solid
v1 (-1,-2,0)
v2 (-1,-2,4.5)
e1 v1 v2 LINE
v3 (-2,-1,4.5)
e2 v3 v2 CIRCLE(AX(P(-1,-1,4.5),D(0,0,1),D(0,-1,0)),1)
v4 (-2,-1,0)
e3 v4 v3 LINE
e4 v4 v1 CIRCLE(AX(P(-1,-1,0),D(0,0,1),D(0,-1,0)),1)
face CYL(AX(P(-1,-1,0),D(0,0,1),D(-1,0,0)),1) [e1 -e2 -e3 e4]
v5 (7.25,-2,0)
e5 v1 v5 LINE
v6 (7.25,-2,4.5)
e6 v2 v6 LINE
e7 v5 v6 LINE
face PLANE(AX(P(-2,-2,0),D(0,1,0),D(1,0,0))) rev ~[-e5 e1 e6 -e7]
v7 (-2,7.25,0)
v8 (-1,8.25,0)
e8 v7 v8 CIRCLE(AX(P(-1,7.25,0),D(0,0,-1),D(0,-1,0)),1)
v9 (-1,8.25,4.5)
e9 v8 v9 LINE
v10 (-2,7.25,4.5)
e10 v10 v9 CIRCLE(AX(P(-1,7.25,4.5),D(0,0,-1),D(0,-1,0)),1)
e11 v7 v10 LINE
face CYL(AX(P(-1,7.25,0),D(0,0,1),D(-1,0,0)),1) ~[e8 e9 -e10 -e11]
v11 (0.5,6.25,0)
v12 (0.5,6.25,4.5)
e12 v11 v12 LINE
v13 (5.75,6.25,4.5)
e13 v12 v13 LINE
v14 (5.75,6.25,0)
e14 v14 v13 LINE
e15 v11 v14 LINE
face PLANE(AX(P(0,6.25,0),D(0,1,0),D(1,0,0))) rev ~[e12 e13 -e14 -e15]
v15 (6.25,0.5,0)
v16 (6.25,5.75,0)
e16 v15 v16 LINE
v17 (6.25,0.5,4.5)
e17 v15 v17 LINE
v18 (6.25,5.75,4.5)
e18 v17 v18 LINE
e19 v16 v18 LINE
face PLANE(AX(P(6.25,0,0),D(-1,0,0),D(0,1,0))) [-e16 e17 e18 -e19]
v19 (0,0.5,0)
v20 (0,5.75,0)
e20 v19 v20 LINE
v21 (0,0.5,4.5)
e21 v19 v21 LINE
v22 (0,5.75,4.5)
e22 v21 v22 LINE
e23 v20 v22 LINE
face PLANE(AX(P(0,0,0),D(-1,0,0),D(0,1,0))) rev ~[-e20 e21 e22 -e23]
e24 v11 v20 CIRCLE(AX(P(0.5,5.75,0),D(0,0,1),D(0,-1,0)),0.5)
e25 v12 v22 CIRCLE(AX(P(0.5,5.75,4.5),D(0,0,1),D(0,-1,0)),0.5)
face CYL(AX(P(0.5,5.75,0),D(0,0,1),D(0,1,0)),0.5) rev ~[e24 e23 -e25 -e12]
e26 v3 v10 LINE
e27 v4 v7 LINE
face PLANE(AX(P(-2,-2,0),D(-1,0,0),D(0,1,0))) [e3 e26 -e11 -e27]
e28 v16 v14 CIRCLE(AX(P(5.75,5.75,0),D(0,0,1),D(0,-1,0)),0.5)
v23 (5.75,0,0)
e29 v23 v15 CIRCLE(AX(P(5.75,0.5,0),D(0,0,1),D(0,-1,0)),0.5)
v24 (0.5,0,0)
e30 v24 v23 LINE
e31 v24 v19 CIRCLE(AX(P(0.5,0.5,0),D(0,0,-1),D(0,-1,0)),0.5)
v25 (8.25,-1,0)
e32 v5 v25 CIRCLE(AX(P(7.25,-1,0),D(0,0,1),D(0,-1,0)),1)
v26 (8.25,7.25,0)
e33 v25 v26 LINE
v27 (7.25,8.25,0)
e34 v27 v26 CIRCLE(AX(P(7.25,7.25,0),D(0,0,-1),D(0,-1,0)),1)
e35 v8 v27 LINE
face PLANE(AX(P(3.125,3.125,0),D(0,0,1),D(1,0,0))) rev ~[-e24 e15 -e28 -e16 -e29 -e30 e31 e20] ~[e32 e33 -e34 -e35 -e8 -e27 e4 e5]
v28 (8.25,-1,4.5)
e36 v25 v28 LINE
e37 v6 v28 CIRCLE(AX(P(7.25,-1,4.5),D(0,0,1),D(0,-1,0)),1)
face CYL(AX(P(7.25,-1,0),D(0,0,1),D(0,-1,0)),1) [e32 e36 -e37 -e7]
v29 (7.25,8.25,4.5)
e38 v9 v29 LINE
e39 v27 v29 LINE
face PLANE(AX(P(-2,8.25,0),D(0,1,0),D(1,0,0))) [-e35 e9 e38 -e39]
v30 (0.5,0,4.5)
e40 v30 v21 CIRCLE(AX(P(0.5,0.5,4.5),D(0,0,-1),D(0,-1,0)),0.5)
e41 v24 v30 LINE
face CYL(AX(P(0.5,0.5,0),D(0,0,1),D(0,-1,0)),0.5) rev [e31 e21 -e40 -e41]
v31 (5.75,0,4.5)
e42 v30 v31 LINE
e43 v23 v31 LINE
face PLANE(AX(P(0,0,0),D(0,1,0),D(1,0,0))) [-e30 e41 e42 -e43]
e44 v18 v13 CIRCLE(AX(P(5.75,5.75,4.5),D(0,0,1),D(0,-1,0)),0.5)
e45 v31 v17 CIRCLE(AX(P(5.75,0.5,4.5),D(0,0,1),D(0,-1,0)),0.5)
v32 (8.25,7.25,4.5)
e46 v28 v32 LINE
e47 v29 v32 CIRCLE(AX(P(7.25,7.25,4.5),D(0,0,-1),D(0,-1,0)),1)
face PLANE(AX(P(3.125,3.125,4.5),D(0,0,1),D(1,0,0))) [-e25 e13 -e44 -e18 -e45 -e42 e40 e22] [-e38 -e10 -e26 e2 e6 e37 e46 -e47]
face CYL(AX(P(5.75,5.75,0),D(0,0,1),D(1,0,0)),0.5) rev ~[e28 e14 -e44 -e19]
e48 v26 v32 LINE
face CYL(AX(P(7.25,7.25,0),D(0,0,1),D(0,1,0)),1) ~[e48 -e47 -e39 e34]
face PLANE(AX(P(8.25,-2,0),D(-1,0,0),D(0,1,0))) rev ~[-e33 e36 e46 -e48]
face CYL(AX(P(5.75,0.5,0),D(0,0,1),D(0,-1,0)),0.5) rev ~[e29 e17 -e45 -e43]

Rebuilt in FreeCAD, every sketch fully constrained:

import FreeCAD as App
import Part
import Sketcher

V = App.Vector


def edges_at(feature, points):
    """Names of the edges that pass closest to the given points."""
    edges = feature.Shape.Edges
    near = lambda p: min(range(len(edges)), key=lambda i: edges[i].distToShape(Part.Vertex(*p))[0])
    return sorted({f"Edge{near(p) + 1}" for p in points})

doc = App.newDocument("Part")
body = doc.addObject("PartDesign::Body", "Body")

# Sketch on XY plane
sketch1 = body.newObject("Sketcher::SketchObject", "Sketch")
sketch1.AttachmentSupport = (doc.getObject("XY_Plane"), [""])
sketch1.MapMode = "FlatFace"
sketch1.addGeometry(Part.LineSegment(V(-2, 8.25, 0), V(-2, -2, 0)), False)
sketch1.addGeometry(Part.LineSegment(V(-2, -2, 0), V(8.25, -2, 0)), False)
sketch1.addGeometry(Part.LineSegment(V(8.25, -2, 0), V(8.25, 8.25, 0)), False)
sketch1.addGeometry(Part.LineSegment(V(8.25, 8.25, 0), V(-2, 8.25, 0)), False)
sketch1.addGeometry(Part.LineSegment(V(6.25, 0, 0), V(0, 0, 0)), False)
sketch1.addGeometry(Part.LineSegment(V(0, 0, 0), V(0, 6.25, 0)), False)
sketch1.addGeometry(Part.LineSegment(V(0, 6.25, 0), V(6.25, 6.25, 0)), False)
sketch1.addGeometry(Part.LineSegment(V(6.25, 6.25, 0), V(6.25, 0, 0)), False)
sketch1.addConstraint(Sketcher.Constraint("Coincident", 0, 2, 1, 1))
sketch1.addConstraint(Sketcher.Constraint("Coincident", 1, 2, 2, 1))
sketch1.addConstraint(Sketcher.Constraint("Coincident", 2, 2, 3, 1))
sketch1.addConstraint(Sketcher.Constraint("Coincident", 3, 2, 0, 1))
sketch1.addConstraint(Sketcher.Constraint("Coincident", 4, 2, 5, 1))
sketch1.addConstraint(Sketcher.Constraint("Coincident", 5, 2, 6, 1))
sketch1.addConstraint(Sketcher.Constraint("Coincident", 6, 2, 7, 1))
sketch1.addConstraint(Sketcher.Constraint("Coincident", 7, 2, 4, 1))
sketch1.addConstraint(Sketcher.Constraint("Vertical", 0))
sketch1.addConstraint(Sketcher.Constraint("Horizontal", 1))
sketch1.addConstraint(Sketcher.Constraint("Vertical", 2))
sketch1.addConstraint(Sketcher.Constraint("Horizontal", 3))
sketch1.addConstraint(Sketcher.Constraint("Horizontal", 4))
sketch1.addConstraint(Sketcher.Constraint("Vertical", 5))
sketch1.addConstraint(Sketcher.Constraint("Horizontal", 6))
sketch1.addConstraint(Sketcher.Constraint("Vertical", 7))
sketch1.addConstraint(Sketcher.Constraint("Coincident", 4, 2, -1, 1))
sketch1.addConstraint(Sketcher.Constraint("Equal", 3, 0))
sketch1.addConstraint(Sketcher.Constraint("Equal", 6, 5))
sketch1.addConstraint(Sketcher.Constraint("DistanceX", 0, 2, -1, 1, 2.0))
sketch1.addConstraint(Sketcher.Constraint("DistanceY", 0, 2, -1, 1, 2.0))
sketch1.addConstraint(Sketcher.Constraint("DistanceY", 5, 2, 3, 2, 2.0))
sketch1.addConstraint(Sketcher.Constraint("DistanceX", 1, 1, 1, 2, 10.25))
pad1 = body.newObject("PartDesign::Pad", "Pad")
pad1.Profile = sketch1
pad1.Length = 4.5
doc.recompute()

fillet = body.newObject("PartDesign::Fillet", "Fillet")
fillet.Base = (pad1, edges_at(pad1, [
    (-2, -2, 2.25),
    (8.25, -2, 2.25),
    (8.25, 8.25, 2.25),
    (-2, 8.25, 2.25),
]))
fillet.Radius = 1
doc.recompute()

fillet2 = body.newObject("PartDesign::Fillet", "Fillet001")
fillet2.Base = (fillet, edges_at(fillet, [
    (0, 6.25, 2.25),
    (6.25, 6.25, 2.25),
    (0, 0, 2.25),
    (6.25, 0, 2.25),
]))
fillet2.Radius = 0.5

doc.recompute()
